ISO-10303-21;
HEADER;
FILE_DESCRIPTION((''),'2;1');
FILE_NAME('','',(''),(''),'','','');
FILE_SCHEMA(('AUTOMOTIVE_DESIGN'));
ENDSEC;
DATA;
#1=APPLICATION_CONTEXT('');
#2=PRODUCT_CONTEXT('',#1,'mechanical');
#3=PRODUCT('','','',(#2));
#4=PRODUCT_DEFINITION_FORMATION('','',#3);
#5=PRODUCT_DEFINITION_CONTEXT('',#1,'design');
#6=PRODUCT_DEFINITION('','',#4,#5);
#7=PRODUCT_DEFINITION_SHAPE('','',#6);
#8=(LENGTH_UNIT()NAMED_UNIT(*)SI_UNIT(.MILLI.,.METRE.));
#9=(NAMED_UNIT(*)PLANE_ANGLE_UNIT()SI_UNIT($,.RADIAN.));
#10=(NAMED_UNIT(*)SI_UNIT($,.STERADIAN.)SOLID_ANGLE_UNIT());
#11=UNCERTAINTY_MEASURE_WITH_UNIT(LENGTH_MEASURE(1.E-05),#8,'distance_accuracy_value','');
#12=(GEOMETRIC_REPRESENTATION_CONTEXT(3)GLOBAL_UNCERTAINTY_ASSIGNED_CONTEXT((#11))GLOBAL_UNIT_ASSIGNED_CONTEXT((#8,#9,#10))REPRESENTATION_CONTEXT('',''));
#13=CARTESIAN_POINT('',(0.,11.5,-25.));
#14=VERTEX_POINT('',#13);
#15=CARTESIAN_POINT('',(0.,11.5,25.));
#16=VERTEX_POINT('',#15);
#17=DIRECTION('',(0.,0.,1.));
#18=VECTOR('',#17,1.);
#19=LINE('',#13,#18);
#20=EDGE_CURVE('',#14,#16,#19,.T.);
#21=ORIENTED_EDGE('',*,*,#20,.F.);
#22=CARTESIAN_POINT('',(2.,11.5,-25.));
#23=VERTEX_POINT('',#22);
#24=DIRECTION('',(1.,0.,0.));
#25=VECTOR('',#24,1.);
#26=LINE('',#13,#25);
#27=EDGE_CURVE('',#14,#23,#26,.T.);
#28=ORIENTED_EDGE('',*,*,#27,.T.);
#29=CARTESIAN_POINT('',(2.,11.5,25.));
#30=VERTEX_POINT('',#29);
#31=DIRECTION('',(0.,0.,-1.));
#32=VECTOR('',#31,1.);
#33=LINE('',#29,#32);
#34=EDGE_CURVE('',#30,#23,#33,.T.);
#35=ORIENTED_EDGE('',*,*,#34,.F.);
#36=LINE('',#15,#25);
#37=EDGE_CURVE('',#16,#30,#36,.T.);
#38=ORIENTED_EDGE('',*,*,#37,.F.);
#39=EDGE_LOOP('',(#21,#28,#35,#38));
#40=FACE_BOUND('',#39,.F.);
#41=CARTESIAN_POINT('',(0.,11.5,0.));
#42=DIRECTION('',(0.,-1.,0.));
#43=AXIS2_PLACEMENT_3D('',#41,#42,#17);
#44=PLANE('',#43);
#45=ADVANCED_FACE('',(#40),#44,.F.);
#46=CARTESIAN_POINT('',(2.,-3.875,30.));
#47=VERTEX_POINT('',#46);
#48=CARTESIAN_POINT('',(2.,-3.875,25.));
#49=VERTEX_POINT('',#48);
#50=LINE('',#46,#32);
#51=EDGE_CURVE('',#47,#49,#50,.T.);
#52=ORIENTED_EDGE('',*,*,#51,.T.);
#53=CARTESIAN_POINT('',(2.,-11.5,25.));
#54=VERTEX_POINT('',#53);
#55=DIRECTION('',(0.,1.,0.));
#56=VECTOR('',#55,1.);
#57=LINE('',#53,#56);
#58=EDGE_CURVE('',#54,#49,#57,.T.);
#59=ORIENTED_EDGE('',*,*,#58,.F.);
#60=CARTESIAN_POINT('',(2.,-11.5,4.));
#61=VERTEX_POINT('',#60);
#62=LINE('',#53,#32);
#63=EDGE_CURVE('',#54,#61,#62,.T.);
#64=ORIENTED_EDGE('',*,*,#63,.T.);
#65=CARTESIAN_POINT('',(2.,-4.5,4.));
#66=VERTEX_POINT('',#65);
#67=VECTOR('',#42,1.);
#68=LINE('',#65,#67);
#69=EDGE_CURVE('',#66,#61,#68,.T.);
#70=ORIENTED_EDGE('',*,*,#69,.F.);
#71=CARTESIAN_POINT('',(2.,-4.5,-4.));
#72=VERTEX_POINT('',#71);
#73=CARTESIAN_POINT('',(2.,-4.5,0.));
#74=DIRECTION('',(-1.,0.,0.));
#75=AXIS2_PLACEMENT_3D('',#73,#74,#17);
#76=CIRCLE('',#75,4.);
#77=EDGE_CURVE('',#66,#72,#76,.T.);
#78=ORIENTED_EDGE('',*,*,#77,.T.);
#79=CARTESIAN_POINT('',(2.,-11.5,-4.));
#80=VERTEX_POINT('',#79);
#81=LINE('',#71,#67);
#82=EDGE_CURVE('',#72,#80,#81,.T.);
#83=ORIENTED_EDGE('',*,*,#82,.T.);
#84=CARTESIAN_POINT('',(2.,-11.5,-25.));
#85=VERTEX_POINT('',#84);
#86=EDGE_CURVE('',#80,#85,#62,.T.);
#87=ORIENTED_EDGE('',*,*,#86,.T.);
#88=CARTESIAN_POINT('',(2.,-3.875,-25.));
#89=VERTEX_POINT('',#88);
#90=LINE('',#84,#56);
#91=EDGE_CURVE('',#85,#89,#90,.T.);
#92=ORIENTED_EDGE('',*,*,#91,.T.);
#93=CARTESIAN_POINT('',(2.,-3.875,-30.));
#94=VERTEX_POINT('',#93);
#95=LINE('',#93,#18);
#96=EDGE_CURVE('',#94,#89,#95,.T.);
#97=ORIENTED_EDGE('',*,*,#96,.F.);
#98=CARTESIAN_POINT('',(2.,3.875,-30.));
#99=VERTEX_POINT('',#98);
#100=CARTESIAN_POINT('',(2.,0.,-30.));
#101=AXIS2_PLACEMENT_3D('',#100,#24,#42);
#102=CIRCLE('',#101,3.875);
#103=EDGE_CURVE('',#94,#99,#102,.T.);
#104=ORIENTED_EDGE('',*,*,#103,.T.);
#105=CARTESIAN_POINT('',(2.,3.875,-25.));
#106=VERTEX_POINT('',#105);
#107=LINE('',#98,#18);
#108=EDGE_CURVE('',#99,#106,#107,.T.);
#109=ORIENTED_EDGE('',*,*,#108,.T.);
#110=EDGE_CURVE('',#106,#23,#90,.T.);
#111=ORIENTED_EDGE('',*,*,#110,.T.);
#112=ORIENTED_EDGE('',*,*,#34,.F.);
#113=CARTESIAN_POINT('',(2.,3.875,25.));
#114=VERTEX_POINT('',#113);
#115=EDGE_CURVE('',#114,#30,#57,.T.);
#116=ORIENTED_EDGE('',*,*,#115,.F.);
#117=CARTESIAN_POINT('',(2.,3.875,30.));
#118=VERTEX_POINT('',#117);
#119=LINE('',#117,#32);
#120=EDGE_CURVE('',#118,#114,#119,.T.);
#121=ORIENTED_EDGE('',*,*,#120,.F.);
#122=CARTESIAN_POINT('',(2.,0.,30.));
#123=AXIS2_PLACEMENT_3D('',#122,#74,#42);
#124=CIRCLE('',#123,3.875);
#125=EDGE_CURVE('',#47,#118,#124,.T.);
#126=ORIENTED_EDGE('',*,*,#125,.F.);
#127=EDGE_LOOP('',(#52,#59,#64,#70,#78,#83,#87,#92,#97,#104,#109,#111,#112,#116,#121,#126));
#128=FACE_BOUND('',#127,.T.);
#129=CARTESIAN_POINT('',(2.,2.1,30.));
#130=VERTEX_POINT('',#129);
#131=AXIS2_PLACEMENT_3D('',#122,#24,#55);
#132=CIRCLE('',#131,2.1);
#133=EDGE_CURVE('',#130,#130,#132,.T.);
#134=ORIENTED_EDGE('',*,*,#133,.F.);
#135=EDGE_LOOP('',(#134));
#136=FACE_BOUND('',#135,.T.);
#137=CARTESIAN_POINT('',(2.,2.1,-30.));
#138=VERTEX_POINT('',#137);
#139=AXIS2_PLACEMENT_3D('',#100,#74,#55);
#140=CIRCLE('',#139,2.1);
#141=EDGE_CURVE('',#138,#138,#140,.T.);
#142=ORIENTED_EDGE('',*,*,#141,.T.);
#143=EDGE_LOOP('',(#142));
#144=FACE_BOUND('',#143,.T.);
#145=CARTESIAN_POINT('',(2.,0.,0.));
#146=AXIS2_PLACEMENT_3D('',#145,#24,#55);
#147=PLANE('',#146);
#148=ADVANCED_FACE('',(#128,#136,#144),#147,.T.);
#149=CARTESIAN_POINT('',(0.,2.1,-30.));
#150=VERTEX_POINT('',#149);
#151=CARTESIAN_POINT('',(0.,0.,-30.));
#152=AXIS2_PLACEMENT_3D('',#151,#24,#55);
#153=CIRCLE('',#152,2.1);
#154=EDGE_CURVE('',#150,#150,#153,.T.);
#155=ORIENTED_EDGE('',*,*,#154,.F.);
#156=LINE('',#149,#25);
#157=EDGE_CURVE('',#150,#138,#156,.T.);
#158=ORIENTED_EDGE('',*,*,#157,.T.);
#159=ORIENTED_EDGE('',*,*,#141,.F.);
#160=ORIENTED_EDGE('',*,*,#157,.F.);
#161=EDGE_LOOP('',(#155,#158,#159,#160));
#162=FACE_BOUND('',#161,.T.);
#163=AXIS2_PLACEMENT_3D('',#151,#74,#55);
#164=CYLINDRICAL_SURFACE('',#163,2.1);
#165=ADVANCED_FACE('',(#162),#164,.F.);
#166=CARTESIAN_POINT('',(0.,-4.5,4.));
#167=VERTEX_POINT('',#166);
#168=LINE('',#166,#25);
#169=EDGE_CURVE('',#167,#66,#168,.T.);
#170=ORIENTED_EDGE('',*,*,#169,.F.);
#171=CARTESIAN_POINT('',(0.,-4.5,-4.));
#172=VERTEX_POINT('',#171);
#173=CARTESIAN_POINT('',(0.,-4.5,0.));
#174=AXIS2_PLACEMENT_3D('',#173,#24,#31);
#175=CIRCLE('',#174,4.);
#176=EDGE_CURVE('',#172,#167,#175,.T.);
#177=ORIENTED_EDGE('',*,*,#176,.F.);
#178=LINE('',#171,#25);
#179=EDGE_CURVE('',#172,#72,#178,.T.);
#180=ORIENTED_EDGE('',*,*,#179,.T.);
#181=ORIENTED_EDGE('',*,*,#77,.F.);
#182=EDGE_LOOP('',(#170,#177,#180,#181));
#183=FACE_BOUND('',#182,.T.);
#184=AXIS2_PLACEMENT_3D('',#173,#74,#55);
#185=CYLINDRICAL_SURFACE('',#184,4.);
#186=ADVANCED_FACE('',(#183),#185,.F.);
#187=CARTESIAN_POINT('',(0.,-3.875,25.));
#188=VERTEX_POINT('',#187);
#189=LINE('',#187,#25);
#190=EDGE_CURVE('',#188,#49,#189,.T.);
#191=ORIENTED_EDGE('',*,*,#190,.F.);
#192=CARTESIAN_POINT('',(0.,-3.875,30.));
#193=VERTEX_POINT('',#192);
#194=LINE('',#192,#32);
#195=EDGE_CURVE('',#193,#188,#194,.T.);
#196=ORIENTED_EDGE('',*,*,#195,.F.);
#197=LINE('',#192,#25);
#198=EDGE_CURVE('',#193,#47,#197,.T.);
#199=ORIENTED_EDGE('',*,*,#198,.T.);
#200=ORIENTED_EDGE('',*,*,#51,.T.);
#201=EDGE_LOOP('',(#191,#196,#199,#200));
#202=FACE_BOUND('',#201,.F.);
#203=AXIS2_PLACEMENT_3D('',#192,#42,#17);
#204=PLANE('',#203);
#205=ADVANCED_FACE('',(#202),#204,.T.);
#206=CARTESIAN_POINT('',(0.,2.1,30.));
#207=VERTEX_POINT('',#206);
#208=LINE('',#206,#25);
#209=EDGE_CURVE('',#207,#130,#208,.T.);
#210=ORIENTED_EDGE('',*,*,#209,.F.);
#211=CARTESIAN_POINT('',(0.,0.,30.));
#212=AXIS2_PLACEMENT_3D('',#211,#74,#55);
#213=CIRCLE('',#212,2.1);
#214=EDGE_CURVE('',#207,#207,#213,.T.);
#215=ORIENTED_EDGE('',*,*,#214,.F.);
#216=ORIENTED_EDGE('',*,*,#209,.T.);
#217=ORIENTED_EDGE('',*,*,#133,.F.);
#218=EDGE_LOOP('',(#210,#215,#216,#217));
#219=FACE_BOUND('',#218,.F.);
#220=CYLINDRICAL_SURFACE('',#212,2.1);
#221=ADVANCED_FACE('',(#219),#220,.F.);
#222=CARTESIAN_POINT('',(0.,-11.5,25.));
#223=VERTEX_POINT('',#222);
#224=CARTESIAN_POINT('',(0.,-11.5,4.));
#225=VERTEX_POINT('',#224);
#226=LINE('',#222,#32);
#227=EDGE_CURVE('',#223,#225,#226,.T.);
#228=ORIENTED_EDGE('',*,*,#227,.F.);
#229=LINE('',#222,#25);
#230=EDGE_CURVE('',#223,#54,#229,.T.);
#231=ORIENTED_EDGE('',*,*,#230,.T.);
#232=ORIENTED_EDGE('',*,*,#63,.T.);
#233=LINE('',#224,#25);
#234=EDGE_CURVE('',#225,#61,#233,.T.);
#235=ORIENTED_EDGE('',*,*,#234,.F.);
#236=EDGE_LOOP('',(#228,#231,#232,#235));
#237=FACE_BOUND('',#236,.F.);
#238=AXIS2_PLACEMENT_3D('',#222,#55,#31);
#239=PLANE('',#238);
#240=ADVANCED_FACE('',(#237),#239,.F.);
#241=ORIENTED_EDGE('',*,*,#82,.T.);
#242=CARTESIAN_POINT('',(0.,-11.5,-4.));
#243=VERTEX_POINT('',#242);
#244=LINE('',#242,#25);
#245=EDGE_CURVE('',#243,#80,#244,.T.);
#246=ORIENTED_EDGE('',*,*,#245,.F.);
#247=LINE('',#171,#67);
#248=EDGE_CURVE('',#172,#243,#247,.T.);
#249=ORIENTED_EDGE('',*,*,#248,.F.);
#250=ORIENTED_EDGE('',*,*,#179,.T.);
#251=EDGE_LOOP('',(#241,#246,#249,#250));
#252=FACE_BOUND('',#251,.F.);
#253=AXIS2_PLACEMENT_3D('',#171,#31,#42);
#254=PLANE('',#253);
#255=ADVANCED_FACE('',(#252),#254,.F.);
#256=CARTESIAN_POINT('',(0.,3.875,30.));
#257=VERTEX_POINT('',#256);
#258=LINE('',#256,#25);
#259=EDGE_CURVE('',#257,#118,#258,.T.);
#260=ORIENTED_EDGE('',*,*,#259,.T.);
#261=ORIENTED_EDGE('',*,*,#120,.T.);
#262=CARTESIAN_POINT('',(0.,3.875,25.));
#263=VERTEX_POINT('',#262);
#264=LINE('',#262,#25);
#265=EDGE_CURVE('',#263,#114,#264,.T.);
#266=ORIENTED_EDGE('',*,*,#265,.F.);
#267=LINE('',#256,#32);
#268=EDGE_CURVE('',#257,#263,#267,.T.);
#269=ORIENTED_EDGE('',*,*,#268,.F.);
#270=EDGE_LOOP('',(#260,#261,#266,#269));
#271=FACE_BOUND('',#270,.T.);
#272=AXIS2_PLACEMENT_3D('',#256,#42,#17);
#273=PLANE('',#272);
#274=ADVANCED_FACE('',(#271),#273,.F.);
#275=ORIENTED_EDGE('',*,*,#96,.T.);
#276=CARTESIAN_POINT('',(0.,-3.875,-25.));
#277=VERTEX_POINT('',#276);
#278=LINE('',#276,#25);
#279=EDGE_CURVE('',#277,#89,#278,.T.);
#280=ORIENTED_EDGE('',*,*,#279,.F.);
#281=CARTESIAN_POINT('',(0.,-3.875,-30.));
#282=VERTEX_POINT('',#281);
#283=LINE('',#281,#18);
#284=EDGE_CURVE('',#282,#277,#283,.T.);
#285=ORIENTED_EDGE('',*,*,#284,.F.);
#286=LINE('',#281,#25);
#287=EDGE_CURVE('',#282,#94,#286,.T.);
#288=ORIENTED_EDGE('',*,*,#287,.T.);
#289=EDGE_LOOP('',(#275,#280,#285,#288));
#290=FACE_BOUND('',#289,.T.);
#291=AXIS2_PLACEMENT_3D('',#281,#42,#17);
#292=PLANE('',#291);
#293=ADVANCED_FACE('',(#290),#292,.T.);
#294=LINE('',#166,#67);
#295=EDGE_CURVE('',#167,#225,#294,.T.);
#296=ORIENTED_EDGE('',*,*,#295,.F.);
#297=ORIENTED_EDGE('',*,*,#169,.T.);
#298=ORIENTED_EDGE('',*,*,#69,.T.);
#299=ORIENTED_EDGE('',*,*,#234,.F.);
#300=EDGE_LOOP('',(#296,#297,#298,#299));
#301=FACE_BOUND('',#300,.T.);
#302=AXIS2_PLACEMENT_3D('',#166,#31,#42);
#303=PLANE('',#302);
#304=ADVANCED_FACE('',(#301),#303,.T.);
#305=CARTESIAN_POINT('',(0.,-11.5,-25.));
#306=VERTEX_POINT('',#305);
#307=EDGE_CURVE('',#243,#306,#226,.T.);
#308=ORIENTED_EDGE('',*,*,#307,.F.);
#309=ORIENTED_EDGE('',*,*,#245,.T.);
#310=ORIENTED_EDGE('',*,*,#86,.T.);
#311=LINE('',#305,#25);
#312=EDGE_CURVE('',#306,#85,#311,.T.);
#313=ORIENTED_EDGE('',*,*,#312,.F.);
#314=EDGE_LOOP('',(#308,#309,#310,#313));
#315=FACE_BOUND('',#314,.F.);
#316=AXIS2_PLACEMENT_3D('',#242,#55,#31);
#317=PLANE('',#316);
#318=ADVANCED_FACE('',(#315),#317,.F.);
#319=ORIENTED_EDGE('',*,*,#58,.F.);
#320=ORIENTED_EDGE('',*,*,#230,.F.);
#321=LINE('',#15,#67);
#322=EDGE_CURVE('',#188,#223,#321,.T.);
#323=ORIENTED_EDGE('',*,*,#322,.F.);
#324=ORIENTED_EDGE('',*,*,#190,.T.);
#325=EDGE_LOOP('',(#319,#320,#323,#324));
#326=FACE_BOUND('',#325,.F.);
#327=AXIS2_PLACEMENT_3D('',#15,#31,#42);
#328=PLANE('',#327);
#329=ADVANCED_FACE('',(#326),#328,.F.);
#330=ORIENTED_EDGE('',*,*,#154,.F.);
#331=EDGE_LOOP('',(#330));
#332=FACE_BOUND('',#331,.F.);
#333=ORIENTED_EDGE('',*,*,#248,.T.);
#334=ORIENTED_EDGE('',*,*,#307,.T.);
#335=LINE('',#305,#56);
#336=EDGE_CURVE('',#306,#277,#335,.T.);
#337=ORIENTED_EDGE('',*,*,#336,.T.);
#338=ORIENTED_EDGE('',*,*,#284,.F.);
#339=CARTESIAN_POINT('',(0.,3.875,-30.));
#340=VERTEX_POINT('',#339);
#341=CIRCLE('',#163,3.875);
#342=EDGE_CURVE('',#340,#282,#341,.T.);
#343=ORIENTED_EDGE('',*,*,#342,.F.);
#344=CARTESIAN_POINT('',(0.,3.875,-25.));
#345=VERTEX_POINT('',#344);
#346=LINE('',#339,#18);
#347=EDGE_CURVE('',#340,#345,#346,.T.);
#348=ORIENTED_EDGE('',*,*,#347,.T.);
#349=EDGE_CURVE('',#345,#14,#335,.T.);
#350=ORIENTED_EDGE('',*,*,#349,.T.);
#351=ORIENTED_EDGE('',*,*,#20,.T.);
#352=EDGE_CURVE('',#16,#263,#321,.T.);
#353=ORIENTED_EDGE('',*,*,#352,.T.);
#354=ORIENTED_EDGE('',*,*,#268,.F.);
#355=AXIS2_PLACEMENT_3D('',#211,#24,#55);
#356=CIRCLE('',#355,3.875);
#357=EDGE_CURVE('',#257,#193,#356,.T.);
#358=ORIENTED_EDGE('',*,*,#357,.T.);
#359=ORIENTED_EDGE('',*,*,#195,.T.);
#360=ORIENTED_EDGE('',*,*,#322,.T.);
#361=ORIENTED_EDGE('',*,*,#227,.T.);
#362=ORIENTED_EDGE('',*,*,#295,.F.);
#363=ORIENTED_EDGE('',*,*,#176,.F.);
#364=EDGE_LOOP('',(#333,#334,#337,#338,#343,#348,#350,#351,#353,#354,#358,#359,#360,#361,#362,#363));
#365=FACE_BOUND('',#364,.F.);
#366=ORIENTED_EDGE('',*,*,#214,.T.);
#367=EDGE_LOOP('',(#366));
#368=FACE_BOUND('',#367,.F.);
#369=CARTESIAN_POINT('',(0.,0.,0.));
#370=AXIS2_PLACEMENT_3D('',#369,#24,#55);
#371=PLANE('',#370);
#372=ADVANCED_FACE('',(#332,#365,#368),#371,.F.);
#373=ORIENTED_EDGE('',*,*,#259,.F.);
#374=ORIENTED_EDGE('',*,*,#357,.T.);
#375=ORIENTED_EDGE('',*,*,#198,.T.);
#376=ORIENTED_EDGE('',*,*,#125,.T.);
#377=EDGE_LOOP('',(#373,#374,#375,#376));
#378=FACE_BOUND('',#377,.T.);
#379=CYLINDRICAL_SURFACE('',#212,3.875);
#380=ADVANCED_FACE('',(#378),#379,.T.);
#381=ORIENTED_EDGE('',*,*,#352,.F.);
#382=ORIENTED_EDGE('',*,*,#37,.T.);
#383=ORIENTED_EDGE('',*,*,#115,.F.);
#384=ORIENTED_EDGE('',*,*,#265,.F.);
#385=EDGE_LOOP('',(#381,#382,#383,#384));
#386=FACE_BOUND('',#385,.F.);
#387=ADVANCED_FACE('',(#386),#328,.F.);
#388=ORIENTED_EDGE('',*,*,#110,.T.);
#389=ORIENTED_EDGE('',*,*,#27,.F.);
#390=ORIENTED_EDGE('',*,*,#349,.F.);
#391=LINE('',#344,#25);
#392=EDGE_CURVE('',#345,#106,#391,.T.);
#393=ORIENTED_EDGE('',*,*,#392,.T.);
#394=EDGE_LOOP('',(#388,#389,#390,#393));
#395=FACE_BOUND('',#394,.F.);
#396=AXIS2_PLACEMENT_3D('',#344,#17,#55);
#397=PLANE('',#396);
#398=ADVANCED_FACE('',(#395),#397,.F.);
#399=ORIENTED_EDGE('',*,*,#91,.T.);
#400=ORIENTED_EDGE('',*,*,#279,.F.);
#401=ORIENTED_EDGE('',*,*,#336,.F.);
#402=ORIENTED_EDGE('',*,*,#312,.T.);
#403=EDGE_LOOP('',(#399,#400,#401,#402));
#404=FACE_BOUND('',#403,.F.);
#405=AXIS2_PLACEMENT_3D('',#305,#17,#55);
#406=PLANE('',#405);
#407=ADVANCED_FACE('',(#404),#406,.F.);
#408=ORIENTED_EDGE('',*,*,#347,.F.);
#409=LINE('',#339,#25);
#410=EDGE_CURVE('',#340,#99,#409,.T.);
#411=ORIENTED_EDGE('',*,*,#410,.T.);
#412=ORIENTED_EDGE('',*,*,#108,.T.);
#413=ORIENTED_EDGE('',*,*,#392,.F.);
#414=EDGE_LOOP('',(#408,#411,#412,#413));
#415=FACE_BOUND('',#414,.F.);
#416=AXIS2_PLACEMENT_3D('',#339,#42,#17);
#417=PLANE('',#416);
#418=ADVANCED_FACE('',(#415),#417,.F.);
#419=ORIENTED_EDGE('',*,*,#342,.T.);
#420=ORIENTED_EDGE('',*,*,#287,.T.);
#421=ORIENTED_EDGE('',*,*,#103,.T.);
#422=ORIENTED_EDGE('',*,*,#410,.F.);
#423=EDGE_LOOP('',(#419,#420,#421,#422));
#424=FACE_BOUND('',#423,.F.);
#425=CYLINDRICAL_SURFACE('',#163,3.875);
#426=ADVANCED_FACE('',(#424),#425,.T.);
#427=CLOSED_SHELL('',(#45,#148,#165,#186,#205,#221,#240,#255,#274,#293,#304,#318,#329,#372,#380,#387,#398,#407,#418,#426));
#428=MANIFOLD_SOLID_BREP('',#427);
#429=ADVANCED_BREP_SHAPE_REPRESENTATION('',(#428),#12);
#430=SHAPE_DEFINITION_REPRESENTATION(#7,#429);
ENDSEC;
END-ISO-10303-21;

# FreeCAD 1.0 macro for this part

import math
import FreeCAD as App
import Part
import Sketcher
Q = App.Units.Quantity

doc = App.newDocument("Part")
body = doc.addObject("PartDesign::Body", "Body")

# Sketch on YZ plane
sketch1 = body.newObject("Sketcher::SketchObject", "Sketch")
sketch1.AttachmentSupport = (doc.getObject("YZ_Plane"), [""])
sketch1.MapMode = "FlatFace"
sketch1.addGeometry(Part.LineSegment(App.Vector(11.5, 25, 0), App.Vector(-11.5, 25, 0)), False)
sketch1.addGeometry(Part.LineSegment(App.Vector(-11.5, 25, 0), App.Vector(-11.5, 4, 0)), False)
sketch1.addGeometry(Part.LineSegment(App.Vector(-11.5, 4, 0), App.Vector(-4.5, 4, 0)), False)
sketch1.addGeometry(Part.ArcOfCircle(Part.Circle(App.Vector(-4.5, 0, 0), App.Vector(0, 0, 1), 4), math.radians(-90), math.radians(90)), False)
sketch1.addGeometry(Part.LineSegment(App.Vector(-4.5, -4, 0), App.Vector(-11.5, -4, 0)), False)
sketch1.addGeometry(Part.LineSegment(App.Vector(-11.5, -4, 0), App.Vector(-11.5, -25, 0)), False)
sketch1.addGeometry(Part.LineSegment(App.Vector(-11.5, -25, 0), App.Vector(-3.9, -25, 0)), False)
sketch1.addGeometry(Part.LineSegment(App.Vector(-3.9, -25, 0), App.Vector(-3.9, -30, 0)), False)
sketch1.addGeometry(Part.ArcOfCircle(Part.Circle(App.Vector(0, -30, 0), App.Vector(0, 0, 1), 3.9), math.radians(180), math.radians(360)), False)
sketch1.addGeometry(Part.LineSegment(App.Vector(3.9, -30, 0), App.Vector(3.9, -25, 0)), False)
sketch1.addGeometry(Part.LineSegment(App.Vector(3.9, -25, 0), App.Vector(11.5, -25, 0)), False)
sketch1.addGeometry(Part.LineSegment(App.Vector(11.5, -25, 0), App.Vector(11.5, 25, 0)), False)
sketch1.addGeometry(Part.Circle(App.Vector(0, -30, 0), App.Vector(0, 0, 1), 2.1), False)
sketch1.addConstraint(Sketcher.Constraint("Coincident", 0, 2, 1, 1))
sketch1.addConstraint(Sketcher.Constraint("Coincident", 1, 2, 2, 1))
sketch1.addConstraint(Sketcher.Constraint("Tangent", 2, 2, 3, 2))
sketch1.addConstraint(Sketcher.Constraint("Tangent", 3, 1, 4, 1))
sketch1.addConstraint(Sketcher.Constraint("Coincident", 4, 2, 5, 1))
sketch1.addConstraint(Sketcher.Constraint("Coincident", 5, 2, 6, 1))
sketch1.addConstraint(Sketcher.Constraint("Coincident", 6, 2, 7, 1))
sketch1.addConstraint(Sketcher.Constraint("Tangent", 7, 2, 8, 1))
sketch1.addConstraint(Sketcher.Constraint("Tangent", 8, 2, 9, 1))
sketch1.addConstraint(Sketcher.Constraint("Coincident", 9, 2, 10, 1))
sketch1.addConstraint(Sketcher.Constraint("Coincident", 10, 2, 11, 1))
sketch1.addConstraint(Sketcher.Constraint("Coincident", 11, 2, 0, 1))
sketch1.addConstraint(Sketcher.Constraint("Horizontal", 0))
sketch1.addConstraint(Sketcher.Constraint("Vertical", 1))
sketch1.addConstraint(Sketcher.Constraint("Horizontal", 2))
sketch1.addConstraint(Sketcher.Constraint("Horizontal", 4))
sketch1.addConstraint(Sketcher.Constraint("Vertical", 5))
sketch1.addConstraint(Sketcher.Constraint("Horizontal", 6))
sketch1.addConstraint(Sketcher.Constraint("Vertical", 7))
sketch1.addConstraint(Sketcher.Constraint("Vertical", 9))
sketch1.addConstraint(Sketcher.Constraint("Horizontal", 10))
sketch1.addConstraint(Sketcher.Constraint("Vertical", 11))
sketch1.addConstraint(Sketcher.Constraint("Coincident", 12, 3, 8, 3))
sketch1.addConstraint(Sketcher.Constraint("Symmetric", 0, 2, 10, 2, -1, 1))
sketch1.addConstraint(Sketcher.Constraint("Symmetric", 5, 2, 11, 2, -1, 1))
sketch1.addConstraint(Sketcher.Constraint("PointOnObject", 3, 3, -1))
sketch1.addConstraint(Sketcher.Constraint("PointOnObject", 8, 3, -2))
sketch1.addConstraint(Sketcher.Constraint("Radius", 3, Q("4 mm")))
sketch1.addConstraint(Sketcher.Constraint("Diameter", 12, Q("4.2 mm")))
sketch1.addConstraint(Sketcher.Constraint("DistanceX", 0, 2, 0, 1, Q("23 mm")))
sketch1.addConstraint(Sketcher.Constraint("DistanceX", 2, 1, 2, 2, Q("7 mm")))
sketch1.addConstraint(Sketcher.Constraint("DistanceY", 7, 2, 7, 1, Q("5 mm")))
sketch1.addConstraint(Sketcher.Constraint("DistanceY", 11, 1, 11, 2, Q("50 mm")))
sketch1.addConstraint(Sketcher.Constraint("Radius", 8, Q("3.875 mm")))
pad1 = body.newObject("PartDesign::Pad", "Pad")
pad1.Profile = sketch1
pad1.Length = 2
doc.recompute()

mirrored = body.newObject("PartDesign::Mirrored", "Mirrored")
mirrored.Originals = [pad1]
mirrored.MirrorPlane = (doc.getObject("XY_Plane"), [""])
body.Tip = mirrored

doc.recompute()
